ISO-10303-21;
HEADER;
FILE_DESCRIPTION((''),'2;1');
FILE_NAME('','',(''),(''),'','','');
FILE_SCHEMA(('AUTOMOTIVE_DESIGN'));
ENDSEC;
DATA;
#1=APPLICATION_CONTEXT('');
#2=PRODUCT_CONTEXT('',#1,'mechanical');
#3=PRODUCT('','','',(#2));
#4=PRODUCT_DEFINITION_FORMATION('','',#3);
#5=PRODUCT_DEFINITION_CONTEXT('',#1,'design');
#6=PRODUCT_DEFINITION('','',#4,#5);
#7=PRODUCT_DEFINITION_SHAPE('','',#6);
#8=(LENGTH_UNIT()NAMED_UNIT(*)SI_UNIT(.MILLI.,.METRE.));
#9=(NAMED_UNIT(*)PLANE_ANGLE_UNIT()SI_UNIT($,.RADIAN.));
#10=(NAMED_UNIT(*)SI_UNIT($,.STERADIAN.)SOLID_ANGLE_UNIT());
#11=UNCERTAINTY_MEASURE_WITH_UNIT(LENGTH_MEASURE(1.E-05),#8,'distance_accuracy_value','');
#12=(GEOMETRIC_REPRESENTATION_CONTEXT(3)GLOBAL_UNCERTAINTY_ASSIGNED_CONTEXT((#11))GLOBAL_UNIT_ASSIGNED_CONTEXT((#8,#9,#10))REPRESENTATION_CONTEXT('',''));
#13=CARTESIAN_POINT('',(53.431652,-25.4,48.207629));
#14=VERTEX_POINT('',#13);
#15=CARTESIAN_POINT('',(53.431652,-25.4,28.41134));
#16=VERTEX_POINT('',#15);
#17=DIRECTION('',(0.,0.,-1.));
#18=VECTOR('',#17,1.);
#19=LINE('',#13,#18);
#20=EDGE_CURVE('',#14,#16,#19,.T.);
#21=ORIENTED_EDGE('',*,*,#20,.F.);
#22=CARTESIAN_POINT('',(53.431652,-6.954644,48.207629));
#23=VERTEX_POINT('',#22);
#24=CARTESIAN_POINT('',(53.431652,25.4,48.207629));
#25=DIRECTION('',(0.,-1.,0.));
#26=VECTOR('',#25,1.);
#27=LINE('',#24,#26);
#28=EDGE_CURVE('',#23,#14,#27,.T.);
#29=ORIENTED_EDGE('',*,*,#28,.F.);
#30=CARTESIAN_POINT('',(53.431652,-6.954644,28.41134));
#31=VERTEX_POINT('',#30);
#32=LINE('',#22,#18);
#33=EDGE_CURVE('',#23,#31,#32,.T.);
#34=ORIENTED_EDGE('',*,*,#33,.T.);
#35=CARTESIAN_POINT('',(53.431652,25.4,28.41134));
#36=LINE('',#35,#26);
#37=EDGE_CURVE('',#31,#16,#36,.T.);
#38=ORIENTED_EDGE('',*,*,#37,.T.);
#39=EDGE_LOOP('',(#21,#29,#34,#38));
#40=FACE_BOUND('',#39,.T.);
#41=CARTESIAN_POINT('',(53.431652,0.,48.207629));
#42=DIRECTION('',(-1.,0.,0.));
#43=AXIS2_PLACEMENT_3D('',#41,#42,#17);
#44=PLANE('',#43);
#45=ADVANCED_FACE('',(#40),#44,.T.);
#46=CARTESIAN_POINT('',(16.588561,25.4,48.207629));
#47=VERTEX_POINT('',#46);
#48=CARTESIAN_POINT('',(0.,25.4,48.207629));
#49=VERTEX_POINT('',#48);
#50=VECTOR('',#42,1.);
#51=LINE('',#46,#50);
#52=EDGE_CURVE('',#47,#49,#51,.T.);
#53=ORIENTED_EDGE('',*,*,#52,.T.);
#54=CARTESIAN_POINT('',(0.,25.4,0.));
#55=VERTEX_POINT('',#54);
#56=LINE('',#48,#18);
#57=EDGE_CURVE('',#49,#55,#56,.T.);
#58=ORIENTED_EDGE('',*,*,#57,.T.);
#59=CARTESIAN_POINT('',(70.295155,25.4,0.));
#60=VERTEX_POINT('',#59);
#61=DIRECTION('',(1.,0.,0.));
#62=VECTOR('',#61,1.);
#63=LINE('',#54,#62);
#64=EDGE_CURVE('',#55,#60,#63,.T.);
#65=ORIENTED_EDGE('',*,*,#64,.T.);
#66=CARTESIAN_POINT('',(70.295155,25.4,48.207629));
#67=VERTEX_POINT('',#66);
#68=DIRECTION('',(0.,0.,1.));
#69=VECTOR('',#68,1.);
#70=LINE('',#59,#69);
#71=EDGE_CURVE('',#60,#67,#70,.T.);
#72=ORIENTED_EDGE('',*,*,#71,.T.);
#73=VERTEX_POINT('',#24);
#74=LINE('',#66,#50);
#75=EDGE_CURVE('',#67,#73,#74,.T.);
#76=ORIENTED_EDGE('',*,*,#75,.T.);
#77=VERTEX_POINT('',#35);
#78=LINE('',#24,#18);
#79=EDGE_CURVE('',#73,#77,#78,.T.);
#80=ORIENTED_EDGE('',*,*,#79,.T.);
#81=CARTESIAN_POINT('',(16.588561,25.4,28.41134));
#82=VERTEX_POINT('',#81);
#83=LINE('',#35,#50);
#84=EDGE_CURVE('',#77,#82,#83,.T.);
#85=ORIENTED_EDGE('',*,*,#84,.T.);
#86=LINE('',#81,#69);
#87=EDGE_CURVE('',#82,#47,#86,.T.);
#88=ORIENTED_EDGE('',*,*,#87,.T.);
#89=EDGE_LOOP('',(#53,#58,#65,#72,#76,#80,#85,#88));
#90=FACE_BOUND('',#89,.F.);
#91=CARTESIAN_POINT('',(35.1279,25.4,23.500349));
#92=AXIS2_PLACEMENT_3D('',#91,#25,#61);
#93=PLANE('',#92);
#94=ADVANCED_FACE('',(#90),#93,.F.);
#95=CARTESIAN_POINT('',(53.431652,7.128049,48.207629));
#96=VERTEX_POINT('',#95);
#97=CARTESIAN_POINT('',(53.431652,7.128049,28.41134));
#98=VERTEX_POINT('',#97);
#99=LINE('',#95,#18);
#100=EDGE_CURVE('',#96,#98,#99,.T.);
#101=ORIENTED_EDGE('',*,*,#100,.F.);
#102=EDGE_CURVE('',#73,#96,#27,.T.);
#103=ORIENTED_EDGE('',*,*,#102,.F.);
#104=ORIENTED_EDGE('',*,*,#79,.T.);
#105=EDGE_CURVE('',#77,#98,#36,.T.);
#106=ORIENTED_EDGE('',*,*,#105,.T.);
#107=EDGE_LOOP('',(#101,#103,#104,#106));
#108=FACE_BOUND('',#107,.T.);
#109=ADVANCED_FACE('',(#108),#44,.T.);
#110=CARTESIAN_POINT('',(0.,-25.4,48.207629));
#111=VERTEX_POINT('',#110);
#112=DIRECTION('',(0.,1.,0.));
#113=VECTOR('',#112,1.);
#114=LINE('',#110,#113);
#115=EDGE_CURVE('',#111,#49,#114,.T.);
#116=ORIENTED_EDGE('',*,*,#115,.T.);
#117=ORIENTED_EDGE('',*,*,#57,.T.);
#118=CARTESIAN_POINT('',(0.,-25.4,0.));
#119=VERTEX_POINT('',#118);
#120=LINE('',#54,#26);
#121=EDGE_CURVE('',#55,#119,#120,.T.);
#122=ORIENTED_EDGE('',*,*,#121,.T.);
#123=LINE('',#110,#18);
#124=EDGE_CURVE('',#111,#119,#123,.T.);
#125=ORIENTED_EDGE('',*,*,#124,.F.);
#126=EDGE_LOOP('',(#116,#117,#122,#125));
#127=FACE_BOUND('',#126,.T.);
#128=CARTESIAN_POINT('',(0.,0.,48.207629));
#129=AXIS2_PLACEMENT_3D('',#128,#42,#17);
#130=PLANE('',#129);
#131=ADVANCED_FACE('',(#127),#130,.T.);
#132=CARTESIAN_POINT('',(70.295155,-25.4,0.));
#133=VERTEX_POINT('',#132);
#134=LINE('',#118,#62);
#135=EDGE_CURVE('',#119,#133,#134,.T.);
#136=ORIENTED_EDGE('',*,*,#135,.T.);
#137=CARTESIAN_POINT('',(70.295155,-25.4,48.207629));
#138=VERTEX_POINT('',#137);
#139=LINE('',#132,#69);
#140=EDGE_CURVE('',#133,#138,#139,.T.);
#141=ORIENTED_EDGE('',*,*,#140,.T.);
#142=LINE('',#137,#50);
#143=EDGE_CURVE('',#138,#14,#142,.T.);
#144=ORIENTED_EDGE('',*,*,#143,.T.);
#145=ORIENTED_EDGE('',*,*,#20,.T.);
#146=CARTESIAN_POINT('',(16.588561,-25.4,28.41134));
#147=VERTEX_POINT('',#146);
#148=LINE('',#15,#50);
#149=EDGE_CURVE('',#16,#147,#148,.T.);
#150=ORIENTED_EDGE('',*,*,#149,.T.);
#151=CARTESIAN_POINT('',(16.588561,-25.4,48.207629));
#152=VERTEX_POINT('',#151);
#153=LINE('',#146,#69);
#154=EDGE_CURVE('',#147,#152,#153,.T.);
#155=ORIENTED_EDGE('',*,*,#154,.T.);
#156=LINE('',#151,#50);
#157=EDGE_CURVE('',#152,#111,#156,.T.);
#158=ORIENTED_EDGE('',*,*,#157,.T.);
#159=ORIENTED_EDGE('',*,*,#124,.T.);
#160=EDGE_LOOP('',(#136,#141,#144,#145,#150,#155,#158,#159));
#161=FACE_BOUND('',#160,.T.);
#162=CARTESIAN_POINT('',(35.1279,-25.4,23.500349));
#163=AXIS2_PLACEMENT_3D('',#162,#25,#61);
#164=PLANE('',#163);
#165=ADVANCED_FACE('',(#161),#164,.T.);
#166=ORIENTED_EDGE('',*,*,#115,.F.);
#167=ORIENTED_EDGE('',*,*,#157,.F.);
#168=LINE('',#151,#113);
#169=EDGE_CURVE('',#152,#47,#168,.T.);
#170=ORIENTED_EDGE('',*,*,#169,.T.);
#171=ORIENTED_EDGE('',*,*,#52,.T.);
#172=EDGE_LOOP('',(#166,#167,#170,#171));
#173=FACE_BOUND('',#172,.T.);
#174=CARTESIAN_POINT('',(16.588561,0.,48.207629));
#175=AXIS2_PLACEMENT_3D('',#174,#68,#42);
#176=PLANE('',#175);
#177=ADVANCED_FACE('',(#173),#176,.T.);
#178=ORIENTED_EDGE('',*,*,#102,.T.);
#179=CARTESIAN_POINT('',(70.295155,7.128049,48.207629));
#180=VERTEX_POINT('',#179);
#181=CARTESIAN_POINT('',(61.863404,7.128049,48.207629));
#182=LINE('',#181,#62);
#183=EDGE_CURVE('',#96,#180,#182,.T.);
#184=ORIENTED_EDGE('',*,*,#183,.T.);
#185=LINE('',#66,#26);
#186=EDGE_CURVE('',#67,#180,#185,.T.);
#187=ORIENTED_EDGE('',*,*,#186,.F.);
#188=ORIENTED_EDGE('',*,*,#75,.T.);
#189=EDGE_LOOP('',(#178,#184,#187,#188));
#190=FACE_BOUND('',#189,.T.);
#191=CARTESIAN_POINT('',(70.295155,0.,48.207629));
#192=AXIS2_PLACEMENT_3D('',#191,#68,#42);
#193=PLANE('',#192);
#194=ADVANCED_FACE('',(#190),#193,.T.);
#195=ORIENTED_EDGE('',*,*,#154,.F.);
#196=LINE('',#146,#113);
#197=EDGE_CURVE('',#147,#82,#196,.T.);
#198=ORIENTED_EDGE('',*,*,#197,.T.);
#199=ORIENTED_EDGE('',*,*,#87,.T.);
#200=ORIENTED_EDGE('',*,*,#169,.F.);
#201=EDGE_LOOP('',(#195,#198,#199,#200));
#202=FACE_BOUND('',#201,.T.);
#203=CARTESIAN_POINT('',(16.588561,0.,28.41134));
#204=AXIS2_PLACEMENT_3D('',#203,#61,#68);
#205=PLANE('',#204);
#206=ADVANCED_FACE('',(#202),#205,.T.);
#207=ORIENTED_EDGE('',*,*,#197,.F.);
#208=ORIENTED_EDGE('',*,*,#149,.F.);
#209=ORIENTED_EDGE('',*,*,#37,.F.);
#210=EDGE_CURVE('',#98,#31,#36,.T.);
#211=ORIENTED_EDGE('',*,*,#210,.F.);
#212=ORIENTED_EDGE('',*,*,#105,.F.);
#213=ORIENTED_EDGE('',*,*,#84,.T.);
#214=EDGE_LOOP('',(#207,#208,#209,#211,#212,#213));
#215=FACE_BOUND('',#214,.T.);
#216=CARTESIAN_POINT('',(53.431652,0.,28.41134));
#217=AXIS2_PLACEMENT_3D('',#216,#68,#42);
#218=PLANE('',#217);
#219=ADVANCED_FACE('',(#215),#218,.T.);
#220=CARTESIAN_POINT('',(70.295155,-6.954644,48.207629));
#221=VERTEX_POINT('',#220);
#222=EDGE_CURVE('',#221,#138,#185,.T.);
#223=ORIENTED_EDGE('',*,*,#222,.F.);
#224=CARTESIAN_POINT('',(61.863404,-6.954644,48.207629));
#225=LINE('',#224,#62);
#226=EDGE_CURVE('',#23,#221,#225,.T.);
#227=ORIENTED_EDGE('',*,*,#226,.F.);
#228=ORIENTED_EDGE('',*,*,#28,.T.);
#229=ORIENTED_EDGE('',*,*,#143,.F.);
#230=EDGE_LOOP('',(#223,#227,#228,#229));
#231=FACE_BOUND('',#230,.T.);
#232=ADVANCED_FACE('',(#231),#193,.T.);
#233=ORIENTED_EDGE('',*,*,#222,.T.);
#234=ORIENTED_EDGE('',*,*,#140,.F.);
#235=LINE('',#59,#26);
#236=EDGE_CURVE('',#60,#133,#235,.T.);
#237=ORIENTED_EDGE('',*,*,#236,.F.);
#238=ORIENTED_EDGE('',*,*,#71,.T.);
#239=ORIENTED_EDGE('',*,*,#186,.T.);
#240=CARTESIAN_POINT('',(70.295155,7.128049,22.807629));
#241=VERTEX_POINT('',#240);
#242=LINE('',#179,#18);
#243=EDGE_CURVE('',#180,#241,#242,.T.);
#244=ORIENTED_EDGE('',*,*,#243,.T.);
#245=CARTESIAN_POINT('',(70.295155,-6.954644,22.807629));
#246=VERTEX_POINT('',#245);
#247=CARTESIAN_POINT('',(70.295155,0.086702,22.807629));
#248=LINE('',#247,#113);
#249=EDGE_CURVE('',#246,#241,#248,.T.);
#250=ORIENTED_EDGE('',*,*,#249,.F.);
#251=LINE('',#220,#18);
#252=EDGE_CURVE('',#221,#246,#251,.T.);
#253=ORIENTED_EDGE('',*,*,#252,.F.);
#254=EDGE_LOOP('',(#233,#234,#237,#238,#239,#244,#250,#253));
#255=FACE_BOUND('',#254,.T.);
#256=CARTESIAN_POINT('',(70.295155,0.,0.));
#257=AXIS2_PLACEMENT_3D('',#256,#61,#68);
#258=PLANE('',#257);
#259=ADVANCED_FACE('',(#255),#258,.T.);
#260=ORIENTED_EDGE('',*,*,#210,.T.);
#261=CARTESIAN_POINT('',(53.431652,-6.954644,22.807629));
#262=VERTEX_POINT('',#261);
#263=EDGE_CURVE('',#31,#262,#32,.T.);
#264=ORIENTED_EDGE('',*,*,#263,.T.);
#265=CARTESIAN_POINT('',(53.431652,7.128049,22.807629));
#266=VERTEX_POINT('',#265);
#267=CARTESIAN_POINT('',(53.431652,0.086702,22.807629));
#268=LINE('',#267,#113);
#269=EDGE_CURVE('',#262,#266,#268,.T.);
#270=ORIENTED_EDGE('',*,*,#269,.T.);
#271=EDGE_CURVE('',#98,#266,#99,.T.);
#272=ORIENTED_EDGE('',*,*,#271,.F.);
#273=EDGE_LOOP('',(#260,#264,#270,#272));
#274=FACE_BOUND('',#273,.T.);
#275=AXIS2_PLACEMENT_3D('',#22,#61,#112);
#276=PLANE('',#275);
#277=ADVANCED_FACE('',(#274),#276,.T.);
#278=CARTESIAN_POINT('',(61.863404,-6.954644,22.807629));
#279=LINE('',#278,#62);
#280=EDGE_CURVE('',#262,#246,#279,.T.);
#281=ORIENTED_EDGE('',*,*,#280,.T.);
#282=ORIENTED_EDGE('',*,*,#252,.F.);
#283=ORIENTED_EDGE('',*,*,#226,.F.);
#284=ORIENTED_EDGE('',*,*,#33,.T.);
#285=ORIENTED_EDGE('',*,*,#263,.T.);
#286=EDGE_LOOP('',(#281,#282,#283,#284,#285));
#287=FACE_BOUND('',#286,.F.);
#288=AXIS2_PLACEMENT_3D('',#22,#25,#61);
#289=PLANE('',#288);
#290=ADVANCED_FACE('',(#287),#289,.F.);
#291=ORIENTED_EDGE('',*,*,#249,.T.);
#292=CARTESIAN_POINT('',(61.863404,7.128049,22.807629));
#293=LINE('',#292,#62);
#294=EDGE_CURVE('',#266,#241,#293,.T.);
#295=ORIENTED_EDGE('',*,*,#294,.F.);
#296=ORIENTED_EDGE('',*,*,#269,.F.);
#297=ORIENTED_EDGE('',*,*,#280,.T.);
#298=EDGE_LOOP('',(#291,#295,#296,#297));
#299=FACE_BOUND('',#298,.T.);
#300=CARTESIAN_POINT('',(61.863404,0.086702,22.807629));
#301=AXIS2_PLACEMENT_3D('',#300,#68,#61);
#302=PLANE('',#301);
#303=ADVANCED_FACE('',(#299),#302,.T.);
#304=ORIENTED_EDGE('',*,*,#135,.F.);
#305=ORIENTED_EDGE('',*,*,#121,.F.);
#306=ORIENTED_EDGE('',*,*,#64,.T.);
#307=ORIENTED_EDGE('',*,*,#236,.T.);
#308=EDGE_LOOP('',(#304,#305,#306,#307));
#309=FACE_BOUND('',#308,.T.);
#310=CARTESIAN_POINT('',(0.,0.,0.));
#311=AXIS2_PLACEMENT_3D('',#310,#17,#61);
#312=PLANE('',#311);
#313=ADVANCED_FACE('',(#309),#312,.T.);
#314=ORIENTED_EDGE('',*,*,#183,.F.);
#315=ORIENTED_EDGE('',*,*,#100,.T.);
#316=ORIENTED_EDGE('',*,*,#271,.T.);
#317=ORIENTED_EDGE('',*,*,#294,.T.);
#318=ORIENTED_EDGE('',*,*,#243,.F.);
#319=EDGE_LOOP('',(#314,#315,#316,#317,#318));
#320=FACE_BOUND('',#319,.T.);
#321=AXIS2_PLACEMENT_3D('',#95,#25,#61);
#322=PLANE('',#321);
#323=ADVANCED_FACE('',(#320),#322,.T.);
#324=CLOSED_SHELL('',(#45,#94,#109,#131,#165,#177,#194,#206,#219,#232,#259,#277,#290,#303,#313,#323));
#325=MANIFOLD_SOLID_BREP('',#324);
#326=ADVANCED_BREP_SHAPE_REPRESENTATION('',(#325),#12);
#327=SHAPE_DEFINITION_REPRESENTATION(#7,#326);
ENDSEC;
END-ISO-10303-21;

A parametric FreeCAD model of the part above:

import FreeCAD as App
import Part
import Sketcher
from FreeCAD import Vector
Q = App.Units.Quantity

doc = App.newDocument("Part")
body = doc.addObject("PartDesign::Body", "Body")

# Sketch on XZ plane
sketch1 = body.newObject("Sketcher::SketchObject", "Sketch")
sketch1.AttachmentSupport = (doc.getObject("XZ_Plane"), [""])
sketch1.MapMode = "FlatFace"
sketch1.addGeometry(Part.LineSegment(Vector(0, 48, 0), Vector(0, 0, 0)), False)
sketch1.addGeometry(Part.LineSegment(Vector(0, 0, 0), Vector(70, 0, 0)), False)
sketch1.addGeometry(Part.LineSegment(Vector(70, 0, 0), Vector(70, 48, 0)), False)
sketch1.addGeometry(Part.LineSegment(Vector(70, 48, 0), Vector(53, 48, 0)), False)
sketch1.addGeometry(Part.LineSegment(Vector(53, 48, 0), Vector(53, 28, 0)), False)
sketch1.addGeometry(Part.LineSegment(Vector(53, 28, 0), Vector(17, 28, 0)), False)
sketch1.addGeometry(Part.LineSegment(Vector(17, 28, 0), Vector(17, 48, 0)), False)
sketch1.addGeometry(Part.LineSegment(Vector(17, 48, 0), Vector(0, 48, 0)), False)
sketch1.addConstraint(Sketcher.Constraint("Coincident", 0, 2, 1, 1))
sketch1.addConstraint(Sketcher.Constraint("Coincident", 1, 2, 2, 1))
sketch1.addConstraint(Sketcher.Constraint("Coincident", 2, 2, 3, 1))
sketch1.addConstraint(Sketcher.Constraint("Coincident", 3, 2, 4, 1))
sketch1.addConstraint(Sketcher.Constraint("Coincident", 4, 2, 5, 1))
sketch1.addConstraint(Sketcher.Constraint("Coincident", 5, 2, 6, 1))
sketch1.addConstraint(Sketcher.Constraint("Coincident", 6, 2, 7, 1))
sketch1.addConstraint(Sketcher.Constraint("Coincident", 7, 2, 0, 1))
sketch1.addConstraint(Sketcher.Constraint("Vertical", 0))
sketch1.addConstraint(Sketcher.Constraint("Horizontal", 1))
sketch1.addConstraint(Sketcher.Constraint("Vertical", 2))
sketch1.addConstraint(Sketcher.Constraint("Horizontal", 3))
sketch1.addConstraint(Sketcher.Constraint("Vertical", 4))
sketch1.addConstraint(Sketcher.Constraint("Horizontal", 5))
sketch1.addConstraint(Sketcher.Constraint("Vertical", 6))
sketch1.addConstraint(Sketcher.Constraint("Horizontal", 7))
sketch1.addConstraint(Sketcher.Constraint("Coincident", 0, 2, -1, 1))
sketch1.addConstraint(Sketcher.Constraint("Horizontal", 3, 2, 6, 2))
sketch1.addConstraint(Sketcher.Constraint("DistanceX", 5, 2, 5, 1, Q("36.843091 mm")))
sketch1.addConstraint(Sketcher.Constraint("DistanceX", 7, 2, 7, 1, Q("16.588561 mm")))
sketch1.addConstraint(Sketcher.Constraint("DistanceY", 0, 2, 0, 1, Q("48.207629 mm")))
sketch1.addConstraint(Sketcher.Constraint("DistanceY", 4, 2, 4, 1, Q("19.79629 mm")))
sketch1.addConstraint(Sketcher.Constraint("DistanceX", 1, 1, 1, 2, Q("70.295155 mm")))
pad1 = body.newObject("PartDesign::Pad", "Pad")
pad1.Profile = sketch1
pad1.Length = Q("2 in")
pad1.Midplane = True

# Sketch on XY plane
sketch2 = body.newObject("Sketcher::SketchObject", "Sketch001")
sketch2.AttachmentSupport = (doc.getObject("XY_Plane"), [""])
sketch2.MapMode = "FlatFace"
sketch2.AttachmentOffset = App.Placement(Vector(0, 0, 48.207629), App.Rotation())
sketch2.addGeometry(Part.LineSegment(Vector(53, 7, 0), Vector(53, -7, 0)), False)
sketch2.addGeometry(Part.LineSegment(Vector(53, -7, 0), Vector(70, -7, 0)), False)
sketch2.addGeometry(Part.LineSegment(Vector(70, -7, 0), Vector(70, 7, 0)), False)
sketch2.addGeometry(Part.LineSegment(Vector(70, 7, 0), Vector(53, 7, 0)), False)
sketch2.addConstraint(Sketcher.Constraint("Coincident", 0, 2, 1, 1))
sketch2.addConstraint(Sketcher.Constraint("Coincident", 1, 2, 2, 1))
sketch2.addConstraint(Sketcher.Constraint("Coincident", 2, 2, 3, 1))
sketch2.addConstraint(Sketcher.Constraint("Coincident", 3, 2, 0, 1))
sketch2.addConstraint(Sketcher.Constraint("Vertical", 0))
sketch2.addConstraint(Sketcher.Constraint("Horizontal", 1))
sketch2.addConstraint(Sketcher.Constraint("Vertical", 2))
sketch2.addConstraint(Sketcher.Constraint("Horizontal", 3))
sketch2.addConstraint(Sketcher.Constraint("DistanceX", 1, 1, 1, 2, Q("16.863503 mm")))
sketch2.addConstraint(Sketcher.Constraint("DistanceY", 0, 2, 0, 1, Q("14.082693 mm")))
sketch2.addConstraint(Sketcher.Constraint("DistanceY", -1, 1, 2, 2, Q("7.128049 mm")))
sketch2.addConstraint(Sketcher.Constraint("DistanceX", -1, 1, 0, 2, Q("53.431652 mm")))
pocket1 = body.newObject("PartDesign::Pocket", "Pocket")
pocket1.Profile = sketch2
pocket1.Length = Q("1 in")

doc.recompute()
